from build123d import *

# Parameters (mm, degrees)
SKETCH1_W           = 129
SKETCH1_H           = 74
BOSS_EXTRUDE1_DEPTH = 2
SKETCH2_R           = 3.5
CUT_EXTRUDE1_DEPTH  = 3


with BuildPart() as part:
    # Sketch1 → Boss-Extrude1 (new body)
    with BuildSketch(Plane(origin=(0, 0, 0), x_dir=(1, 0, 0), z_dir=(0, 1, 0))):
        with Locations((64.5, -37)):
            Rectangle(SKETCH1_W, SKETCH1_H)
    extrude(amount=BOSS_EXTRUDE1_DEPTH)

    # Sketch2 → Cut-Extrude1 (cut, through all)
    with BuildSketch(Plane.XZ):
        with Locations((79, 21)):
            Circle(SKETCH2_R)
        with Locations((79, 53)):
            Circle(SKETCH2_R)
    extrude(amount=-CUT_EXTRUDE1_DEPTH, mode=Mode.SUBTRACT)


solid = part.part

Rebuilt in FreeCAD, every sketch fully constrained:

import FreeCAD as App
import Part
import Sketcher

doc = App.newDocument("Part")
body = doc.addObject("PartDesign::Body", "Body")

# Sketch on XZ plane
sketch1 = body.newObject("Sketcher::SketchObject", "Sketch")
sketch1.AttachmentSupport = (doc.getObject("XZ_Plane"), [""])
sketch1.MapMode = "FlatFace"
sketch1.addGeometry([
    Part.LineSegment(App.Vector(0, 0, 0), App.Vector(0, 74, 0)),
    Part.LineSegment(App.Vector(0, 74, 0), App.Vector(129, 74, 0)),
    Part.LineSegment(App.Vector(129, 74, 0), App.Vector(129, 0, 0)),
    Part.LineSegment(App.Vector(129, 0, 0), App.Vector(0, 0, 0)),
], False)
sketch1.addConstraint([
    Sketcher.Constraint("Coincident", 0, 2, 1, 1),
    Sketcher.Constraint("Coincident", 1, 2, 2, 1),
    Sketcher.Constraint("Coincident", 2, 2, 3, 1),
    Sketcher.Constraint("Coincident", 3, 2, 0, 1),
    Sketcher.Constraint("Vertical", 0),
    Sketcher.Constraint("Horizontal", 1),
    Sketcher.Constraint("Vertical", 2),
    Sketcher.Constraint("Horizontal", 3),
    Sketcher.Constraint("Coincident", 3, 2, -1, 1),
    Sketcher.Constraint("DistanceX", 1, 1, 1, 2, 129.0),
    Sketcher.Constraint("DistanceY", 0, 1, 0, 2, 74.0),
])
pad1 = body.newObject("PartDesign::Pad", "Pad")
pad1.Profile = sketch1
pad1.Length = 2
pad1.Reversed = True

# Sketch on XZ plane
sketch2 = body.newObject("Sketcher::SketchObject", "Sketch001")
sketch2.AttachmentSupport = (doc.getObject("XZ_Plane"), [""])
sketch2.MapMode = "FlatFace"
sketch2.addGeometry([
    Part.Circle(App.Vector(79, 21, 0), App.Vector(0, 0, 1), 3.5),
    Part.Circle(App.Vector(79, 53, 0), App.Vector(0, 0, 1), 3.5),
], False)
sketch2.addConstraint([
    Sketcher.Constraint("Equal", 0, 1),
    Sketcher.Constraint("Vertical", 0, 3, 1, 3),
    Sketcher.Constraint("Diameter", 0, 7.0),
    Sketcher.Constraint("DistanceX", -1, 1, 0, 3, 79.0),
    Sketcher.Constraint("DistanceY", -1, 1, 0, 3, 21.0),
    Sketcher.Constraint("DistanceY", -1, 1, 1, 3, 53.0),
])
pocket1 = body.newObject("PartDesign::Pocket", "Pocket")
pocket1.Profile = sketch2
pocket1.Type = "ThroughAll"

doc.recompute()
